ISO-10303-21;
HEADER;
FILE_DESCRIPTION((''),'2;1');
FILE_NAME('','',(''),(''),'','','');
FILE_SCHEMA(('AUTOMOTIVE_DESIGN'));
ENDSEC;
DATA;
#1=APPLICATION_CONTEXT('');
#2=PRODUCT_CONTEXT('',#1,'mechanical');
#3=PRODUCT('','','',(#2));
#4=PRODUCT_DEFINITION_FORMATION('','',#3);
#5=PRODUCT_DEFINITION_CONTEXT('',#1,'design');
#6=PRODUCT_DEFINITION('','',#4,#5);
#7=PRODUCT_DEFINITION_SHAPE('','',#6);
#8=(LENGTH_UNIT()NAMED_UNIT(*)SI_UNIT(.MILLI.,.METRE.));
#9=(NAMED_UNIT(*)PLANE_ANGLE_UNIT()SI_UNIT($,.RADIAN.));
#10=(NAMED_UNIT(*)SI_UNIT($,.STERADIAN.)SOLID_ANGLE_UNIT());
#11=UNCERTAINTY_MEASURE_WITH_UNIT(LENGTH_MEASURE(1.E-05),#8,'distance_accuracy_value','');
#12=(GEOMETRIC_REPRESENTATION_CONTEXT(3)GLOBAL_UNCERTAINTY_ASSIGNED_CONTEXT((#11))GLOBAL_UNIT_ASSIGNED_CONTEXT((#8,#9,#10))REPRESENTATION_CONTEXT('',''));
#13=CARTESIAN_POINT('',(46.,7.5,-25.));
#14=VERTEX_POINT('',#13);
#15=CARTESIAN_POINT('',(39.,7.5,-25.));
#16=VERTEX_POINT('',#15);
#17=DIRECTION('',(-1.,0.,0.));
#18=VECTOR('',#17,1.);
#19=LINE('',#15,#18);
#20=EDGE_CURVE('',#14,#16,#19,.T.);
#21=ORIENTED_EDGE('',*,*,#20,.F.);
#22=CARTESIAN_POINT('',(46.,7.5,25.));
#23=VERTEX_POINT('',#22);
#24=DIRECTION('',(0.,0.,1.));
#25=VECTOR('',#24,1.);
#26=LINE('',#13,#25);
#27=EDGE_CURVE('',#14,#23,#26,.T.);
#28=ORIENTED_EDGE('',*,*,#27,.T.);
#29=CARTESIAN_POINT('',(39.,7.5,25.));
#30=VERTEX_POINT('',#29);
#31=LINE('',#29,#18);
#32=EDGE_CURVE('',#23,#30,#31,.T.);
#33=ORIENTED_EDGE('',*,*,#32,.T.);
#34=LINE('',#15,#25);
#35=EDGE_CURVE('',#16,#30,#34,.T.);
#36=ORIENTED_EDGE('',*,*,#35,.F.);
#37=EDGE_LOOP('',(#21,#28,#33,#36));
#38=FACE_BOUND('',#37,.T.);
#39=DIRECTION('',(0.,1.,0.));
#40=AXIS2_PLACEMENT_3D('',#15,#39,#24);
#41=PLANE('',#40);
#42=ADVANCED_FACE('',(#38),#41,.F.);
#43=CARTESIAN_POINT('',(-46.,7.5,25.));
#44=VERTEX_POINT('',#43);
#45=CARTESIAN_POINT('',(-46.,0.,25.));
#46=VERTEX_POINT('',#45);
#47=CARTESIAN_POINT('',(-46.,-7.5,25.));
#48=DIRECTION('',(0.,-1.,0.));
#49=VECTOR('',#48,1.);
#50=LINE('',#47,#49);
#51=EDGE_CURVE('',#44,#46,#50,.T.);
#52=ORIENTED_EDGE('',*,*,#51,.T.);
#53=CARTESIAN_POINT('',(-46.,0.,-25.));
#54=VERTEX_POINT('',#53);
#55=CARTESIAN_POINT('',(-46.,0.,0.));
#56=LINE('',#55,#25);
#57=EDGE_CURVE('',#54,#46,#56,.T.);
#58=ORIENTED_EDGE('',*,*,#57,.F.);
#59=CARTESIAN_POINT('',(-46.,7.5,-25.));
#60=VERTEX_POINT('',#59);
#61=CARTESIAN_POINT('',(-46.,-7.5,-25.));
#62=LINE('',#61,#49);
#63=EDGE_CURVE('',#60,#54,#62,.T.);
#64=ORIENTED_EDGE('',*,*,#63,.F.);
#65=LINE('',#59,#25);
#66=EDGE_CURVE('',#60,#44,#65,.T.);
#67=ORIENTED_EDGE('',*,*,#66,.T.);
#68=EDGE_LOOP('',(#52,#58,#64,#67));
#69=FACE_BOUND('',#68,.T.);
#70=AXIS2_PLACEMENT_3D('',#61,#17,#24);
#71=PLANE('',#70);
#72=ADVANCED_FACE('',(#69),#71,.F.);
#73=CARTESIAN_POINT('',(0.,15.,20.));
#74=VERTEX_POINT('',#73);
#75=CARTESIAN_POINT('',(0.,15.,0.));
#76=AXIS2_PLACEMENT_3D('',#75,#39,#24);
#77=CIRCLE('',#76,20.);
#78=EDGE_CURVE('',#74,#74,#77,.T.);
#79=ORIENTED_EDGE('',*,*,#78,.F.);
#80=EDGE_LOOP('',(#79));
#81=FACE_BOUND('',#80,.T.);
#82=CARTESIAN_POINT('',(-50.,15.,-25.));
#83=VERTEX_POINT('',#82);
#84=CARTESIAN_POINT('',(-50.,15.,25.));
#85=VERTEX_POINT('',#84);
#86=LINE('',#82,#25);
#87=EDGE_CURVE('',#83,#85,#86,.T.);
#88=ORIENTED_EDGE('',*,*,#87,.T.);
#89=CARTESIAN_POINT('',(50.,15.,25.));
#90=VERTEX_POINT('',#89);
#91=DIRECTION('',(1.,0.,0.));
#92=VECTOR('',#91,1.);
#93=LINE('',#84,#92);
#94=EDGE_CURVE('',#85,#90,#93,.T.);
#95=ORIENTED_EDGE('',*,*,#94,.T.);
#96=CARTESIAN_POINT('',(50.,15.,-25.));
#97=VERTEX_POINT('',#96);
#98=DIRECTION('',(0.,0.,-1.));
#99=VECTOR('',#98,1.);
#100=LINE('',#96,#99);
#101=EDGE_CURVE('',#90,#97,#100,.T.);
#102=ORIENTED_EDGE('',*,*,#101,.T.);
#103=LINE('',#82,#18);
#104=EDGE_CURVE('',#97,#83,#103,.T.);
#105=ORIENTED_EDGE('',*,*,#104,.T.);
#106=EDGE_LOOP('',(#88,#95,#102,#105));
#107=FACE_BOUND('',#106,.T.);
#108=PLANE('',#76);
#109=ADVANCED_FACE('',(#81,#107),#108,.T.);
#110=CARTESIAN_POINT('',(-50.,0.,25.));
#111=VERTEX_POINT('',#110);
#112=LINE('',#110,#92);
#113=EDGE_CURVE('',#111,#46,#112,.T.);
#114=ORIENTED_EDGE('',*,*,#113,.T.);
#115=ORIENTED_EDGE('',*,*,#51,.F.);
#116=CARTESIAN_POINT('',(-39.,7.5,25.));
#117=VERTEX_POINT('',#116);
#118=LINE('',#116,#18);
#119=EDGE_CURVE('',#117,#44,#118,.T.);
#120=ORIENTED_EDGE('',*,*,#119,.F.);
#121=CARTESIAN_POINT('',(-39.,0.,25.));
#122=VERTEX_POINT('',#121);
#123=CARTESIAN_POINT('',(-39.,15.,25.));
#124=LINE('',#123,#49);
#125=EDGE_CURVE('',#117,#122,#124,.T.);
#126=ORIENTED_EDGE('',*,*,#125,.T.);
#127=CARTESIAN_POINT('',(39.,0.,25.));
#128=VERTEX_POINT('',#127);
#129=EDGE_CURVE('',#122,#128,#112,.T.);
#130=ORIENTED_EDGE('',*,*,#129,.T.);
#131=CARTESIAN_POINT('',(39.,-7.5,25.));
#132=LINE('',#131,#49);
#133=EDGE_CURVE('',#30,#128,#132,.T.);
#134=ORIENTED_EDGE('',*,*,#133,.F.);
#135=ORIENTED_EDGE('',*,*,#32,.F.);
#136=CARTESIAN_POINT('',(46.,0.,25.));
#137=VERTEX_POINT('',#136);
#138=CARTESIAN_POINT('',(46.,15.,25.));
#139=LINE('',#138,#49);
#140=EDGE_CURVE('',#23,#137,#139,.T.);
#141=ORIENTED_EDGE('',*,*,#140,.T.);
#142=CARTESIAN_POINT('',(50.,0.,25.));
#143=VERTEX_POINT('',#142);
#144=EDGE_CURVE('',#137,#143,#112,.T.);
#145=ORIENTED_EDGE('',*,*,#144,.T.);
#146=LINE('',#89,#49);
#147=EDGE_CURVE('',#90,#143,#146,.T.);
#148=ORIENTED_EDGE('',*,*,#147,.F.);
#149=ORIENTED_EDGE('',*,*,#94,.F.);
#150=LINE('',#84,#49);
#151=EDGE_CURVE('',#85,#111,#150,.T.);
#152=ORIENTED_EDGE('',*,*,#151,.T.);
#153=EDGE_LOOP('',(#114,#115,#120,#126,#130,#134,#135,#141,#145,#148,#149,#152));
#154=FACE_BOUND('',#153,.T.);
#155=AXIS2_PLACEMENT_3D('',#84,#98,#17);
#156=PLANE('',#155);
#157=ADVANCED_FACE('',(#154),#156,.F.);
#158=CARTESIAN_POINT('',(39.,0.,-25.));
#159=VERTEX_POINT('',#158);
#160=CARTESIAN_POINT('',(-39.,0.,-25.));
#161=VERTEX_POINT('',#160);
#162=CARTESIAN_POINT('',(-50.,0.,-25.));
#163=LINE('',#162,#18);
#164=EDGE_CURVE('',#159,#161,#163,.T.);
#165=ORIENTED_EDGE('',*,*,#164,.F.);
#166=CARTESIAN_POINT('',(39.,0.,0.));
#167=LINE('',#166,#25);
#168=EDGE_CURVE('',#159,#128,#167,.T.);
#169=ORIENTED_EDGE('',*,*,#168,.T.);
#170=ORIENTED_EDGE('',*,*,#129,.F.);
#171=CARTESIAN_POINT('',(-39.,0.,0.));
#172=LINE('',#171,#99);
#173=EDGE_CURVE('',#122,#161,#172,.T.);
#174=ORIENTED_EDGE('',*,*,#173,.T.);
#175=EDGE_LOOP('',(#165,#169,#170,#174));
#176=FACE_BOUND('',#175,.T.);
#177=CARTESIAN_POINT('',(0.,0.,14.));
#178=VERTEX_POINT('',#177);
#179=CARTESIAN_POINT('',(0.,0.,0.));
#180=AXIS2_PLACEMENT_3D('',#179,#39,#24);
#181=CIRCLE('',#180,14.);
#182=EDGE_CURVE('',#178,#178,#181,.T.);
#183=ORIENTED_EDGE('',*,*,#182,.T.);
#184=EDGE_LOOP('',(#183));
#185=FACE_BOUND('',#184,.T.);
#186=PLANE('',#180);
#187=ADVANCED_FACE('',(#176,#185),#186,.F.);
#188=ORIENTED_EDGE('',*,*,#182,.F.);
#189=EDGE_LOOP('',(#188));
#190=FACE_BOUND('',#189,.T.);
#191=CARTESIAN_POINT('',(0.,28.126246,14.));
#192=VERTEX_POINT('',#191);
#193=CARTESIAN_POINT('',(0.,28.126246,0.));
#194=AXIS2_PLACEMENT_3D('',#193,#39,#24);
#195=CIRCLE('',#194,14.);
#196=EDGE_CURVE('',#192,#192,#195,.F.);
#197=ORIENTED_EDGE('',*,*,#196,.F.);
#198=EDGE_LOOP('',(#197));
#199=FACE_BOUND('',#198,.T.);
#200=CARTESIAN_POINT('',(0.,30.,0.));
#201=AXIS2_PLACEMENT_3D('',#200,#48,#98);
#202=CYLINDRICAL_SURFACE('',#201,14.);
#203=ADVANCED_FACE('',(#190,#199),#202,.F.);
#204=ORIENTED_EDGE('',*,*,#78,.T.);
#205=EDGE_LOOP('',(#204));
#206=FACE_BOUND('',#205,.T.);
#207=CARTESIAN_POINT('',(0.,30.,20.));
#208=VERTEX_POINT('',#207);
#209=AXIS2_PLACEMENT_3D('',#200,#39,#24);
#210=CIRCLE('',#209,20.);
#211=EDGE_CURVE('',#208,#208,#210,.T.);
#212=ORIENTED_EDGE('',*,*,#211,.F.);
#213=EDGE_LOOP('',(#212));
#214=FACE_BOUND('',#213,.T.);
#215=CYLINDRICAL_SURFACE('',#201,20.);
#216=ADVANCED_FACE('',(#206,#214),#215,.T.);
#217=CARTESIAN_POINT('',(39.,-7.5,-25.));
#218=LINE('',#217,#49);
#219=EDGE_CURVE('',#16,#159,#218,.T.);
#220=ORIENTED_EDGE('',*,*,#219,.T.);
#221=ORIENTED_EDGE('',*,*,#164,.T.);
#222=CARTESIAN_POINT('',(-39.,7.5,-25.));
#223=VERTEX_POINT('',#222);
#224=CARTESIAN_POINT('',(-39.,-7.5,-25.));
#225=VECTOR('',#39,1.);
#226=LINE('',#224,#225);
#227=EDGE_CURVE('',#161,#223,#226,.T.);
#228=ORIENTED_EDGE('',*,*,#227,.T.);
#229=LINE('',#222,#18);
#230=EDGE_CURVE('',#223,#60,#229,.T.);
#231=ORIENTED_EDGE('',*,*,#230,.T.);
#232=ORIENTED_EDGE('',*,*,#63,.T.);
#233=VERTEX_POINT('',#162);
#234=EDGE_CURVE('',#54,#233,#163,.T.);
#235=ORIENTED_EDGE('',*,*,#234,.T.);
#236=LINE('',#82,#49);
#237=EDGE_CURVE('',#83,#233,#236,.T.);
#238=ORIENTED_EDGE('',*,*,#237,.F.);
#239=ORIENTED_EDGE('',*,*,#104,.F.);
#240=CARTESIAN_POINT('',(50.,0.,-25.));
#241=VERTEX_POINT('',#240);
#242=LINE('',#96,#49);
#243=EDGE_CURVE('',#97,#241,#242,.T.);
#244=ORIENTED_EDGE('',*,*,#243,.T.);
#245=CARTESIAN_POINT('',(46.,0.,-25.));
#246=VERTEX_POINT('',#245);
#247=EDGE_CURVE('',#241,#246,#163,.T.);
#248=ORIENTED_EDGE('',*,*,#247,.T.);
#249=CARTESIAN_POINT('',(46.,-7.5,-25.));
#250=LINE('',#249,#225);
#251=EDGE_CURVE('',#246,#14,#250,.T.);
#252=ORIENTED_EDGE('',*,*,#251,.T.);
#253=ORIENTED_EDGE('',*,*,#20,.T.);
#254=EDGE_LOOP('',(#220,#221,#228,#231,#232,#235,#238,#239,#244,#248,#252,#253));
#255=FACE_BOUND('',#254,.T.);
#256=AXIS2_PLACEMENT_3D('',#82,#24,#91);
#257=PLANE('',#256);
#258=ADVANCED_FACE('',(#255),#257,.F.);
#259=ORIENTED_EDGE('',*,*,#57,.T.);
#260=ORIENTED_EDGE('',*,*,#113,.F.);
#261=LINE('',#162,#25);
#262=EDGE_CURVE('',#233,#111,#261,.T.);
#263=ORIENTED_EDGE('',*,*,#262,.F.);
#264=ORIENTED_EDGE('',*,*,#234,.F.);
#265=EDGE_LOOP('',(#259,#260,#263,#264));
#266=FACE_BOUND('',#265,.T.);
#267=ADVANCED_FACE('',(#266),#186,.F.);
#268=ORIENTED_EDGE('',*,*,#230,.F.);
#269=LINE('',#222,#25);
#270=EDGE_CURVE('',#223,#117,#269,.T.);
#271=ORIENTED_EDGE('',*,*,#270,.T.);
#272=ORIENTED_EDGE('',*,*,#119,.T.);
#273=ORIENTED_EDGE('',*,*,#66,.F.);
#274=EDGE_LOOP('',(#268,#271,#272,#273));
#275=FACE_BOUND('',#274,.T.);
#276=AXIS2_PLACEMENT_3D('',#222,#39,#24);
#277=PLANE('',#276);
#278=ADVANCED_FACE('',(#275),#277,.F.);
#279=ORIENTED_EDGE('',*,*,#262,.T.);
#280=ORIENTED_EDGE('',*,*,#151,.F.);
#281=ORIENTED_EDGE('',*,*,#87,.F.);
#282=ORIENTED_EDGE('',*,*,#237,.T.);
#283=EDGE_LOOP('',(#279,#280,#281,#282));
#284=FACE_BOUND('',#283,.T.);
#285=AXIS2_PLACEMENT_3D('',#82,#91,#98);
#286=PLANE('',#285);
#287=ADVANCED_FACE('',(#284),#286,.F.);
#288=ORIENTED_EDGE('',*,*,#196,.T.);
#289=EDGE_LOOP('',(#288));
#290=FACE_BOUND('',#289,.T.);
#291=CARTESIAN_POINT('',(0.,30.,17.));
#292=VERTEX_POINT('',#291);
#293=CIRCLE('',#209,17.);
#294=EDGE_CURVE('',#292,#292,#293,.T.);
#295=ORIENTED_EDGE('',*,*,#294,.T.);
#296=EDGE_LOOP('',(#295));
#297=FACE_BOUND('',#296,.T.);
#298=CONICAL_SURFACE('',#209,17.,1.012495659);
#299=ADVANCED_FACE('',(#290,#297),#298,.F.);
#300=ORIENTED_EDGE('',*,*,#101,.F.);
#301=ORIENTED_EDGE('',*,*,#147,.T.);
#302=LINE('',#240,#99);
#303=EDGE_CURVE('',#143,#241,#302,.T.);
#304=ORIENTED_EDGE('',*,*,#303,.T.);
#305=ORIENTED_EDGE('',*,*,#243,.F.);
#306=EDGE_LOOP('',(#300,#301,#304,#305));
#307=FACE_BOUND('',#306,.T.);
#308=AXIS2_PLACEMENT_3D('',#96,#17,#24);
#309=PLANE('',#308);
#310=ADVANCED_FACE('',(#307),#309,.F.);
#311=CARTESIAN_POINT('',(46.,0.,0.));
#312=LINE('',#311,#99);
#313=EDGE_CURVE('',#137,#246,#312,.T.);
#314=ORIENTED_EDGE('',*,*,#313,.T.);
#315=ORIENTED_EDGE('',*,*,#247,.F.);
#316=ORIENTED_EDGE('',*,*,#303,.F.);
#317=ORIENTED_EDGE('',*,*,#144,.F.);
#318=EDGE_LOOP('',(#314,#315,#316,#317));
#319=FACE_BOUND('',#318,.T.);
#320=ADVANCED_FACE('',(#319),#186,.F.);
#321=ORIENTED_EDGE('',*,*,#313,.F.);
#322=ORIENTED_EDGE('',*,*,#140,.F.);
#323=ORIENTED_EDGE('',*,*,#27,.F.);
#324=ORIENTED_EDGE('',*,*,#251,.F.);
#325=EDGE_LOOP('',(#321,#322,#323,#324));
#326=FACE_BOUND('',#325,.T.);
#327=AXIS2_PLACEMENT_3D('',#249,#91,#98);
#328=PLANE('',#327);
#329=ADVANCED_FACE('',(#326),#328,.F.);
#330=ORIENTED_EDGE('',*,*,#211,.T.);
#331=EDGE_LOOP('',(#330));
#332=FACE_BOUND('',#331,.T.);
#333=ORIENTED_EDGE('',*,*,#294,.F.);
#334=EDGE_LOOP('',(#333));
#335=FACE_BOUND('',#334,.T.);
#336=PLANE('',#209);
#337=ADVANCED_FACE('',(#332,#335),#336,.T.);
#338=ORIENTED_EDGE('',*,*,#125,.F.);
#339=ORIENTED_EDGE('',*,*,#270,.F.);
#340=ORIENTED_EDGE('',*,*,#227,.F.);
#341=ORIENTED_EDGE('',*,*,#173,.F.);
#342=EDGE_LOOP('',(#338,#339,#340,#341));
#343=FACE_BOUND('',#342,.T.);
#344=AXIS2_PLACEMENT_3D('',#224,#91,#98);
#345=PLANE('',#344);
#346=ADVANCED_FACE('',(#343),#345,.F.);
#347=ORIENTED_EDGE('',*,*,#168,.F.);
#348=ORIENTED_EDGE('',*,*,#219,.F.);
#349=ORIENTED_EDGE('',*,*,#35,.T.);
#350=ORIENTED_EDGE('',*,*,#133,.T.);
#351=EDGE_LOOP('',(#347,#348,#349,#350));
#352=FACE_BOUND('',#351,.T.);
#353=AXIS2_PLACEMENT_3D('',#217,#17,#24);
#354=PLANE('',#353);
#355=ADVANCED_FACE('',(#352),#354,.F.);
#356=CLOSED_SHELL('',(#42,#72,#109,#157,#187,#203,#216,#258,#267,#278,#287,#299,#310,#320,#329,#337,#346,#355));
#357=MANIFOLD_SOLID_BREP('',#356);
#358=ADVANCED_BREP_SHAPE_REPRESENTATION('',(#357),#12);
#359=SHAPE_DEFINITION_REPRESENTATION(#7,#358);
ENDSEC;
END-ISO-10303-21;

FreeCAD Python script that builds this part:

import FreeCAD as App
import Part
import Sketcher
from FreeCAD import Vector

doc = App.newDocument("Part")
params = doc.addObject("Spreadsheet::Sheet", "Params")
for row, (alias, value) in enumerate([
    ("sketch1_diameter", "40 mm"),
    ("sketch1_diameter2", "28 mm"),
    ("pad1_length", "30 mm"),
    ("sketch2_width", "17 mm"),
    ("sketch2_length", "20 mm"),
    ("groove_angle", "360 deg"),
    ("sketch3_diameter", "28 mm"),
    ("sketch3_width", "100 mm"),
    ("sketch3_height", "50 mm"),
    ("pad2_length", "15 mm"),
    ("sketch4_width", "7 mm"),
    ("sketch4_height", "15 mm"),
], start=1):
    params.set(f"A{row}", alias)
    params.set(f"B{row}", "=" + value)
    params.setAlias(f"B{row}", alias)

body = doc.addObject("PartDesign::Body", "Body")

# Sketch on XZ plane
sketch1 = doc.addObject("Sketcher::SketchObject", "Sketch")
body.addObject(sketch1)
sketch1.AttachmentSupport = (doc.XZ_Plane, [""])
sketch1.MapMode = "FlatFace"
sketch1.addGeometry(Part.Circle(Vector(0, 0, 0), Vector(0, 0, 1), 20), False)
sketch1.addGeometry(Part.Circle(Vector(0, 0, 0), Vector(0, 0, 1), 14), False)
sketch1.addConstraint(Sketcher.Constraint("Coincident", 0, 3, -1, 1))
sketch1.addConstraint(Sketcher.Constraint("Coincident", 1, 3, -1, 1))
sketch1.addConstraint(Sketcher.Constraint("Diameter", 0, 40.0))
sketch1.addConstraint(Sketcher.Constraint("Diameter", 1, 28.0))
sketch1.setExpression("Constraints[2]", "Params.sketch1_diameter")
sketch1.setExpression("Constraints[3]", "Params.sketch1_diameter2")
pad1 = doc.addObject("PartDesign::Pad", "Pad")
body.addObject(pad1)
pad1.Profile = sketch1
pad1.setExpression("Length", "Params.pad1_length")
pad1.Reversed = True

# Sketch on XY plane
sketch2 = doc.addObject("Sketcher::SketchObject", "Sketch001")
body.addObject(sketch2)
sketch2.AttachmentSupport = (doc.XY_Plane, [""])
sketch2.MapMode = "FlatFace"
sketch2.addGeometry(Part.LineSegment(Vector(-17, 30, 0), Vector(0, 19.4, 0)), False)
sketch2.addGeometry(Part.LineSegment(Vector(0, 19.4, 0), Vector(0, 30, 0)), False)
sketch2.addGeometry(Part.LineSegment(Vector(0, 30, 0), Vector(0, 34.7, 0)), False)
sketch2.addGeometry(Part.LineSegment(Vector(0, 34.7, 0), Vector(-17, 34.7, 0)), False)
sketch2.addGeometry(Part.LineSegment(Vector(-17, 34.7, 0), Vector(-17, 30, 0)), False)
sketch2.addConstraint(Sketcher.Constraint("Coincident", 0, 2, 1, 1))
sketch2.addConstraint(Sketcher.Constraint("Coincident", 1, 2, 2, 1))
sketch2.addConstraint(Sketcher.Constraint("Coincident", 2, 2, 3, 1))
sketch2.addConstraint(Sketcher.Constraint("Coincident", 3, 2, 4, 1))
sketch2.addConstraint(Sketcher.Constraint("Coincident", 4, 2, 0, 1))
sketch2.addConstraint(Sketcher.Constraint("Vertical", 2))
sketch2.addConstraint(Sketcher.Constraint("Horizontal", 3))
sketch2.addConstraint(Sketcher.Constraint("Vertical", 4))
sketch2.addConstraint(Sketcher.Constraint("PointOnObject", 1, 2, -2))
sketch2.addConstraint(Sketcher.Constraint("Horizontal", 1, 2, 4, 2))
sketch2.addConstraint(Sketcher.Constraint("DistanceX", 3, 2, 3, 1, 17.0))
sketch2.addConstraint(Sketcher.Constraint("Distance", 0, 20.0))
sketch2.addConstraint(Sketcher.Constraint("DistanceY", -1, 1, 1, 2, 30.0))
sketch2.addConstraint(Sketcher.Constraint("DistanceY", 2, 1, 2, 2, 4.747307))
sketch2.addConstraint(Sketcher.Constraint("DistanceX", 0, 2, -1, 1, 0.036869))
sketch2.setExpression("Constraints[10]", "Params.sketch2_width")
sketch2.setExpression("Constraints[11]", "Params.sketch2_length")
groove = doc.addObject("PartDesign::Groove", "Groove")
body.addObject(groove)
groove.Profile = sketch2
groove.ReferenceAxis = (sketch2, ["V_Axis"])
groove.setExpression("Angle", "Params.groove_angle")

# Sketch on XZ plane
sketch3 = doc.addObject("Sketcher::SketchObject", "Sketch002")
body.addObject(sketch3)
sketch3.AttachmentSupport = (doc.XZ_Plane, [""])
sketch3.MapMode = "FlatFace"
sketch3.addGeometry(Part.LineSegment(Vector(-50, -25, 0), Vector(-50, 25, 0)), False)
sketch3.addGeometry(Part.LineSegment(Vector(-50, 25, 0), Vector(50, 25, 0)), False)
sketch3.addGeometry(Part.LineSegment(Vector(50, 25, 0), Vector(50, -25, 0)), False)
sketch3.addGeometry(Part.LineSegment(Vector(50, -25, 0), Vector(-50, -25, 0)), False)
sketch3.addGeometry(Part.Circle(Vector(0, 0, 0), Vector(0, 0, 1), 14), False)
sketch3.addConstraint(Sketcher.Constraint("Coincident", 0, 2, 1, 1))
sketch3.addConstraint(Sketcher.Constraint("Coincident", 1, 2, 2, 1))
sketch3.addConstraint(Sketcher.Constraint("Coincident", 2, 2, 3, 1))
sketch3.addConstraint(Sketcher.Constraint("Coincident", 3, 2, 0, 1))
sketch3.addConstraint(Sketcher.Constraint("Vertical", 0))
sketch3.addConstraint(Sketcher.Constraint("Horizontal", 1))
sketch3.addConstraint(Sketcher.Constraint("Vertical", 2))
sketch3.addConstraint(Sketcher.Constraint("Horizontal", 3))
sketch3.addConstraint(Sketcher.Constraint("Coincident", 4, 3, -1, 1))
sketch3.addConstraint(Sketcher.Constraint("Symmetric", 0, 2, 2, 2, -1, 1))
sketch3.addConstraint(Sketcher.Constraint("Diameter", 4, 28.0))
sketch3.addConstraint(Sketcher.Constraint("DistanceX", 1, 1, 1, 2, 100.0))
sketch3.addConstraint(Sketcher.Constraint("DistanceY", 0, 1, 0, 2, 50.0))
sketch3.setExpression("Constraints[10]", "Params.sketch3_diameter")
sketch3.setExpression("Constraints[11]", "Params.sketch3_width")
sketch3.setExpression("Constraints[12]", "Params.sketch3_height")
pad2 = doc.addObject("PartDesign::Pad", "Pad001")
body.addObject(pad2)
pad2.Profile = sketch3
pad2.setExpression("Length", "Params.pad2_length")
pad2.Reversed = True

# Sketch on XY plane
sketch4 = doc.addObject("Sketcher::SketchObject", "Sketch003")
body.addObject(sketch4)
sketch4.AttachmentSupport = (doc.XY_Plane, [""])
sketch4.MapMode = "FlatFace"
sketch4.addGeometry(Part.LineSegment(Vector(-46, 8, 0), Vector(-46, -8, 0)), False)
sketch4.addGeometry(Part.LineSegment(Vector(-46, -8, 0), Vector(-39, -8, 0)), False)
sketch4.addGeometry(Part.LineSegment(Vector(-39, -8, 0), Vector(-39, 8, 0)), False)
sketch4.addGeometry(Part.LineSegment(Vector(-39, 8, 0), Vector(-46, 8, 0)), False)
sketch4.addGeometry(Part.LineSegment(Vector(39, 8, 0), Vector(39, -8, 0)), False)
sketch4.addGeometry(Part.LineSegment(Vector(39, -8, 0), Vector(46, -8, 0)), False)
sketch4.addGeometry(Part.LineSegment(Vector(46, -8, 0), Vector(46, 8, 0)), False)
sketch4.addGeometry(Part.LineSegment(Vector(46, 8, 0), Vector(39, 8, 0)), False)
sketch4.addConstraint(Sketcher.Constraint("Coincident", 0, 2, 1, 1))
sketch4.addConstraint(Sketcher.Constraint("Coincident", 1, 2, 2, 1))
sketch4.addConstraint(Sketcher.Constraint("Coincident", 2, 2, 3, 1))
sketch4.addConstraint(Sketcher.Constraint("Coincident", 3, 2, 0, 1))
sketch4.addConstraint(Sketcher.Constraint("Coincident", 4, 2, 5, 1))
sketch4.addConstraint(Sketcher.Constraint("Coincident", 5, 2, 6, 1))
sketch4.addConstraint(Sketcher.Constraint("Coincident", 6, 2, 7, 1))
sketch4.addConstraint(Sketcher.Constraint("Coincident", 7, 2, 4, 1))
sketch4.addConstraint(Sketcher.Constraint("Vertical", 0))
sketch4.addConstraint(Sketcher.Constraint("Horizontal", 1))
sketch4.addConstraint(Sketcher.Constraint("Vertical", 2))
sketch4.addConstraint(Sketcher.Constraint("Horizontal", 3))
sketch4.addConstraint(Sketcher.Constraint("Vertical", 4))
sketch4.addConstraint(Sketcher.Constraint("Horizontal", 5))
sketch4.addConstraint(Sketcher.Constraint("Vertical", 6))
sketch4.addConstraint(Sketcher.Constraint("Horizontal", 7))
sketch4.addConstraint(Sketcher.Constraint("Symmetric", 2, 2, 4, 2, -1, 1))
sketch4.addConstraint(Sketcher.Constraint("Symmetric", 0, 2, 6, 2, -1, 1))
sketch4.addConstraint(Sketcher.Constraint("Horizontal", 1, 2, 4, 2))
sketch4.addConstraint(Sketcher.Constraint("DistanceX", 1, 1, 1, 2, 7.0))
sketch4.addConstraint(Sketcher.Constraint("DistanceY", 0, 2, 0, 1, 15.0))
sketch4.addConstraint(Sketcher.Constraint("DistanceX", 0, 2, -1, 1, 46.0))
sketch4.setExpression("Constraints[19]", "Params.sketch4_width")
sketch4.setExpression("Constraints[20]", "Params.sketch4_height")
pocket1 = doc.addObject("PartDesign::Pocket", "Pocket")
body.addObject(pocket1)
pocket1.Profile = sketch4
pocket1.Type = "ThroughAll"
pocket1.Midplane = True

doc.recompute()
